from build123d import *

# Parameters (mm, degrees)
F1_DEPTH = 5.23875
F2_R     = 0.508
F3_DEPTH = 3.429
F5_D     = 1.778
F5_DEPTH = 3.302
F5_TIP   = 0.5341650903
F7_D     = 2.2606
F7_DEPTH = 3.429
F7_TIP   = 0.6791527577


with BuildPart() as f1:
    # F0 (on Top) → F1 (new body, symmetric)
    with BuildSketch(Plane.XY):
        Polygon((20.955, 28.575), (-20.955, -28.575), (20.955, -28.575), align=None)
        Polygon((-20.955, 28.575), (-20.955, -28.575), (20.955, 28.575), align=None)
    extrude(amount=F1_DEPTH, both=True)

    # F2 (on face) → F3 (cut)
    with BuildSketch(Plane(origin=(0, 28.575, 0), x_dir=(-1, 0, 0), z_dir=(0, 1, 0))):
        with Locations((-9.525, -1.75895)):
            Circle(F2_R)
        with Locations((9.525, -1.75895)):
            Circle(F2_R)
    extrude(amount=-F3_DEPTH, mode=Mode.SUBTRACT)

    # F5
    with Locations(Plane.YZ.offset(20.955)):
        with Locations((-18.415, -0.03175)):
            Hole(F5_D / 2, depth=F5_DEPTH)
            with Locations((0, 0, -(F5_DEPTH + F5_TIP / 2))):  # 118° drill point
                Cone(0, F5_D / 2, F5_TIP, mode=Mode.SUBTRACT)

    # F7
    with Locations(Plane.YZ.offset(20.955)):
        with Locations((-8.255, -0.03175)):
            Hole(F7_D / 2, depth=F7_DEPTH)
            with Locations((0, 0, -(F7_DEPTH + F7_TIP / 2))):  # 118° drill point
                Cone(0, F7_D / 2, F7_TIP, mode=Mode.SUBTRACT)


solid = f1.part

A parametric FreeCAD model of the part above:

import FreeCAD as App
import Part
import Sketcher

V = App.Vector
Q = App.Units.Quantity

doc = App.newDocument("Part")
body = doc.addObject("PartDesign::Body", "Body")

# Sketch on XY plane
sketch1 = body.newObject("Sketcher::SketchObject", "Sketch")
sketch1.AttachmentSupport = (doc.getObject("XY_Plane"), [""])
sketch1.MapMode = "FlatFace"
sketch1.addGeometry(Part.LineSegment(V(-21, -29, 0), V(21, -29, 0)), False)
sketch1.addGeometry(Part.LineSegment(V(21, -29, 0), V(21, 29, 0)), False)
sketch1.addGeometry(Part.LineSegment(V(21, 29, 0), V(-21, 29, 0)), False)
sketch1.addGeometry(Part.LineSegment(V(-21, 29, 0), V(-21, -29, 0)), False)
sketch1.addConstraint(Sketcher.Constraint("Coincident", 0, 2, 1, 1))
sketch1.addConstraint(Sketcher.Constraint("Coincident", 1, 2, 2, 1))
sketch1.addConstraint(Sketcher.Constraint("Coincident", 2, 2, 3, 1))
sketch1.addConstraint(Sketcher.Constraint("Coincident", 3, 2, 0, 1))
sketch1.addConstraint(Sketcher.Constraint("Horizontal", 0))
sketch1.addConstraint(Sketcher.Constraint("Vertical", 1))
sketch1.addConstraint(Sketcher.Constraint("Horizontal", 2))
sketch1.addConstraint(Sketcher.Constraint("Vertical", 3))
sketch1.addConstraint(Sketcher.Constraint("Symmetric", 0, 2, 2, 2, -1, 1))
sketch1.addConstraint(Sketcher.Constraint("DistanceX", 0, 1, 0, 2, Q("1.65 in")))
sketch1.addConstraint(Sketcher.Constraint("DistanceY", 1, 1, 1, 2, Q("2.25 in")))
pad1 = body.newObject("PartDesign::Pad", "Pad")
pad1.Profile = sketch1
pad1.Length = Q("0.4125 in")
pad1.Midplane = True

# Sketch on XZ plane
sketch2 = body.newObject("Sketcher::SketchObject", "Sketch001")
sketch2.AttachmentSupport = (doc.getObject("XZ_Plane"), [""])
sketch2.MapMode = "FlatFace"
sketch2.AttachmentOffset = App.Placement(V(0, 0, -1.125 * 25.4), App.Rotation())
sketch2.addGeometry(Part.Circle(V(9.5, -1.8, 0), V(0, 0, 1), 0.5), False)
sketch2.addGeometry(Part.Circle(V(-9.5, -1.8, 0), V(0, 0, 1), 0.5), False)
sketch2.addConstraint(Sketcher.Constraint("Equal", 0, 1))
sketch2.addConstraint(Sketcher.Constraint("Symmetric", 0, 3, 1, 3, -2))
sketch2.addConstraint(Sketcher.Constraint("Diameter", 0, Q("0.04 in")))
sketch2.addConstraint(Sketcher.Constraint("DistanceX", 1, 3, 0, 3, Q("0.75 in")))
sketch2.addConstraint(Sketcher.Constraint("DistanceY", 0, 3, -1, 1, 1.75895))
pocket1 = body.newObject("PartDesign::Pocket", "Pocket")
pocket1.Profile = sketch2
pocket1.Length = Q("0.135 in")
pocket1.Reversed = True

# Sketch on YZ plane
sketch3 = body.newObject("Sketcher::SketchObject", "Sketch002")
sketch3.AttachmentSupport = (doc.getObject("YZ_Plane"), [""])
sketch3.MapMode = "FlatFace"
sketch3.AttachmentOffset = App.Placement(V(0, 0, 0.825 * 25.4), App.Rotation())
sketch3.addGeometry(Part.Circle(V(-18.4, 0, 0), V(0, 0, 1), 0.9), False)
sketch3.addConstraint(Sketcher.Constraint("Diameter", 0, Q("0.07 in")))
sketch3.addConstraint(Sketcher.Constraint("DistanceX", 0, 3, -1, 1, Q("0.725 in")))
sketch3.addConstraint(Sketcher.Constraint("DistanceY", 0, 3, -1, 1, 0.03175))
doc.recompute()
hole = body.newObject("PartDesign::Hole", "Hole")
hole.Profile = sketch3
hole.ThreadType = "None"
hole.Diameter = Q("0.07 in")
hole.DepthType = "Dimension"
hole.Depth = Q("0.13 in")
hole.DrillPoint = "Angled"
hole.DrillPointAngle = 118

# Sketch on YZ plane
sketch4 = body.newObject("Sketcher::SketchObject", "Sketch003")
sketch4.AttachmentSupport = (doc.getObject("YZ_Plane"), [""])
sketch4.MapMode = "FlatFace"
sketch4.AttachmentOffset = App.Placement(V(0, 0, 0.825 * 25.4), App.Rotation())
sketch4.addGeometry(Part.Circle(V(-8.3, 0, 0), V(0, 0, 1), 1.1), False)
sketch4.addConstraint(Sketcher.Constraint("Diameter", 0, Q("0.089 in")))
sketch4.addConstraint(Sketcher.Constraint("DistanceX", 0, 3, -1, 1, Q("0.325 in")))
sketch4.addConstraint(Sketcher.Constraint("DistanceY", 0, 3, -1, 1, 0.03175))
doc.recompute()
hole2 = body.newObject("PartDesign::Hole", "Hole001")
hole2.Profile = sketch4
hole2.ThreadType = "None"
hole2.Diameter = Q("0.089 in")
hole2.DepthType = "Dimension"
hole2.Depth = Q("0.135 in")
hole2.DrillPoint = "Angled"
hole2.DrillPointAngle = 118

doc.recompute()
